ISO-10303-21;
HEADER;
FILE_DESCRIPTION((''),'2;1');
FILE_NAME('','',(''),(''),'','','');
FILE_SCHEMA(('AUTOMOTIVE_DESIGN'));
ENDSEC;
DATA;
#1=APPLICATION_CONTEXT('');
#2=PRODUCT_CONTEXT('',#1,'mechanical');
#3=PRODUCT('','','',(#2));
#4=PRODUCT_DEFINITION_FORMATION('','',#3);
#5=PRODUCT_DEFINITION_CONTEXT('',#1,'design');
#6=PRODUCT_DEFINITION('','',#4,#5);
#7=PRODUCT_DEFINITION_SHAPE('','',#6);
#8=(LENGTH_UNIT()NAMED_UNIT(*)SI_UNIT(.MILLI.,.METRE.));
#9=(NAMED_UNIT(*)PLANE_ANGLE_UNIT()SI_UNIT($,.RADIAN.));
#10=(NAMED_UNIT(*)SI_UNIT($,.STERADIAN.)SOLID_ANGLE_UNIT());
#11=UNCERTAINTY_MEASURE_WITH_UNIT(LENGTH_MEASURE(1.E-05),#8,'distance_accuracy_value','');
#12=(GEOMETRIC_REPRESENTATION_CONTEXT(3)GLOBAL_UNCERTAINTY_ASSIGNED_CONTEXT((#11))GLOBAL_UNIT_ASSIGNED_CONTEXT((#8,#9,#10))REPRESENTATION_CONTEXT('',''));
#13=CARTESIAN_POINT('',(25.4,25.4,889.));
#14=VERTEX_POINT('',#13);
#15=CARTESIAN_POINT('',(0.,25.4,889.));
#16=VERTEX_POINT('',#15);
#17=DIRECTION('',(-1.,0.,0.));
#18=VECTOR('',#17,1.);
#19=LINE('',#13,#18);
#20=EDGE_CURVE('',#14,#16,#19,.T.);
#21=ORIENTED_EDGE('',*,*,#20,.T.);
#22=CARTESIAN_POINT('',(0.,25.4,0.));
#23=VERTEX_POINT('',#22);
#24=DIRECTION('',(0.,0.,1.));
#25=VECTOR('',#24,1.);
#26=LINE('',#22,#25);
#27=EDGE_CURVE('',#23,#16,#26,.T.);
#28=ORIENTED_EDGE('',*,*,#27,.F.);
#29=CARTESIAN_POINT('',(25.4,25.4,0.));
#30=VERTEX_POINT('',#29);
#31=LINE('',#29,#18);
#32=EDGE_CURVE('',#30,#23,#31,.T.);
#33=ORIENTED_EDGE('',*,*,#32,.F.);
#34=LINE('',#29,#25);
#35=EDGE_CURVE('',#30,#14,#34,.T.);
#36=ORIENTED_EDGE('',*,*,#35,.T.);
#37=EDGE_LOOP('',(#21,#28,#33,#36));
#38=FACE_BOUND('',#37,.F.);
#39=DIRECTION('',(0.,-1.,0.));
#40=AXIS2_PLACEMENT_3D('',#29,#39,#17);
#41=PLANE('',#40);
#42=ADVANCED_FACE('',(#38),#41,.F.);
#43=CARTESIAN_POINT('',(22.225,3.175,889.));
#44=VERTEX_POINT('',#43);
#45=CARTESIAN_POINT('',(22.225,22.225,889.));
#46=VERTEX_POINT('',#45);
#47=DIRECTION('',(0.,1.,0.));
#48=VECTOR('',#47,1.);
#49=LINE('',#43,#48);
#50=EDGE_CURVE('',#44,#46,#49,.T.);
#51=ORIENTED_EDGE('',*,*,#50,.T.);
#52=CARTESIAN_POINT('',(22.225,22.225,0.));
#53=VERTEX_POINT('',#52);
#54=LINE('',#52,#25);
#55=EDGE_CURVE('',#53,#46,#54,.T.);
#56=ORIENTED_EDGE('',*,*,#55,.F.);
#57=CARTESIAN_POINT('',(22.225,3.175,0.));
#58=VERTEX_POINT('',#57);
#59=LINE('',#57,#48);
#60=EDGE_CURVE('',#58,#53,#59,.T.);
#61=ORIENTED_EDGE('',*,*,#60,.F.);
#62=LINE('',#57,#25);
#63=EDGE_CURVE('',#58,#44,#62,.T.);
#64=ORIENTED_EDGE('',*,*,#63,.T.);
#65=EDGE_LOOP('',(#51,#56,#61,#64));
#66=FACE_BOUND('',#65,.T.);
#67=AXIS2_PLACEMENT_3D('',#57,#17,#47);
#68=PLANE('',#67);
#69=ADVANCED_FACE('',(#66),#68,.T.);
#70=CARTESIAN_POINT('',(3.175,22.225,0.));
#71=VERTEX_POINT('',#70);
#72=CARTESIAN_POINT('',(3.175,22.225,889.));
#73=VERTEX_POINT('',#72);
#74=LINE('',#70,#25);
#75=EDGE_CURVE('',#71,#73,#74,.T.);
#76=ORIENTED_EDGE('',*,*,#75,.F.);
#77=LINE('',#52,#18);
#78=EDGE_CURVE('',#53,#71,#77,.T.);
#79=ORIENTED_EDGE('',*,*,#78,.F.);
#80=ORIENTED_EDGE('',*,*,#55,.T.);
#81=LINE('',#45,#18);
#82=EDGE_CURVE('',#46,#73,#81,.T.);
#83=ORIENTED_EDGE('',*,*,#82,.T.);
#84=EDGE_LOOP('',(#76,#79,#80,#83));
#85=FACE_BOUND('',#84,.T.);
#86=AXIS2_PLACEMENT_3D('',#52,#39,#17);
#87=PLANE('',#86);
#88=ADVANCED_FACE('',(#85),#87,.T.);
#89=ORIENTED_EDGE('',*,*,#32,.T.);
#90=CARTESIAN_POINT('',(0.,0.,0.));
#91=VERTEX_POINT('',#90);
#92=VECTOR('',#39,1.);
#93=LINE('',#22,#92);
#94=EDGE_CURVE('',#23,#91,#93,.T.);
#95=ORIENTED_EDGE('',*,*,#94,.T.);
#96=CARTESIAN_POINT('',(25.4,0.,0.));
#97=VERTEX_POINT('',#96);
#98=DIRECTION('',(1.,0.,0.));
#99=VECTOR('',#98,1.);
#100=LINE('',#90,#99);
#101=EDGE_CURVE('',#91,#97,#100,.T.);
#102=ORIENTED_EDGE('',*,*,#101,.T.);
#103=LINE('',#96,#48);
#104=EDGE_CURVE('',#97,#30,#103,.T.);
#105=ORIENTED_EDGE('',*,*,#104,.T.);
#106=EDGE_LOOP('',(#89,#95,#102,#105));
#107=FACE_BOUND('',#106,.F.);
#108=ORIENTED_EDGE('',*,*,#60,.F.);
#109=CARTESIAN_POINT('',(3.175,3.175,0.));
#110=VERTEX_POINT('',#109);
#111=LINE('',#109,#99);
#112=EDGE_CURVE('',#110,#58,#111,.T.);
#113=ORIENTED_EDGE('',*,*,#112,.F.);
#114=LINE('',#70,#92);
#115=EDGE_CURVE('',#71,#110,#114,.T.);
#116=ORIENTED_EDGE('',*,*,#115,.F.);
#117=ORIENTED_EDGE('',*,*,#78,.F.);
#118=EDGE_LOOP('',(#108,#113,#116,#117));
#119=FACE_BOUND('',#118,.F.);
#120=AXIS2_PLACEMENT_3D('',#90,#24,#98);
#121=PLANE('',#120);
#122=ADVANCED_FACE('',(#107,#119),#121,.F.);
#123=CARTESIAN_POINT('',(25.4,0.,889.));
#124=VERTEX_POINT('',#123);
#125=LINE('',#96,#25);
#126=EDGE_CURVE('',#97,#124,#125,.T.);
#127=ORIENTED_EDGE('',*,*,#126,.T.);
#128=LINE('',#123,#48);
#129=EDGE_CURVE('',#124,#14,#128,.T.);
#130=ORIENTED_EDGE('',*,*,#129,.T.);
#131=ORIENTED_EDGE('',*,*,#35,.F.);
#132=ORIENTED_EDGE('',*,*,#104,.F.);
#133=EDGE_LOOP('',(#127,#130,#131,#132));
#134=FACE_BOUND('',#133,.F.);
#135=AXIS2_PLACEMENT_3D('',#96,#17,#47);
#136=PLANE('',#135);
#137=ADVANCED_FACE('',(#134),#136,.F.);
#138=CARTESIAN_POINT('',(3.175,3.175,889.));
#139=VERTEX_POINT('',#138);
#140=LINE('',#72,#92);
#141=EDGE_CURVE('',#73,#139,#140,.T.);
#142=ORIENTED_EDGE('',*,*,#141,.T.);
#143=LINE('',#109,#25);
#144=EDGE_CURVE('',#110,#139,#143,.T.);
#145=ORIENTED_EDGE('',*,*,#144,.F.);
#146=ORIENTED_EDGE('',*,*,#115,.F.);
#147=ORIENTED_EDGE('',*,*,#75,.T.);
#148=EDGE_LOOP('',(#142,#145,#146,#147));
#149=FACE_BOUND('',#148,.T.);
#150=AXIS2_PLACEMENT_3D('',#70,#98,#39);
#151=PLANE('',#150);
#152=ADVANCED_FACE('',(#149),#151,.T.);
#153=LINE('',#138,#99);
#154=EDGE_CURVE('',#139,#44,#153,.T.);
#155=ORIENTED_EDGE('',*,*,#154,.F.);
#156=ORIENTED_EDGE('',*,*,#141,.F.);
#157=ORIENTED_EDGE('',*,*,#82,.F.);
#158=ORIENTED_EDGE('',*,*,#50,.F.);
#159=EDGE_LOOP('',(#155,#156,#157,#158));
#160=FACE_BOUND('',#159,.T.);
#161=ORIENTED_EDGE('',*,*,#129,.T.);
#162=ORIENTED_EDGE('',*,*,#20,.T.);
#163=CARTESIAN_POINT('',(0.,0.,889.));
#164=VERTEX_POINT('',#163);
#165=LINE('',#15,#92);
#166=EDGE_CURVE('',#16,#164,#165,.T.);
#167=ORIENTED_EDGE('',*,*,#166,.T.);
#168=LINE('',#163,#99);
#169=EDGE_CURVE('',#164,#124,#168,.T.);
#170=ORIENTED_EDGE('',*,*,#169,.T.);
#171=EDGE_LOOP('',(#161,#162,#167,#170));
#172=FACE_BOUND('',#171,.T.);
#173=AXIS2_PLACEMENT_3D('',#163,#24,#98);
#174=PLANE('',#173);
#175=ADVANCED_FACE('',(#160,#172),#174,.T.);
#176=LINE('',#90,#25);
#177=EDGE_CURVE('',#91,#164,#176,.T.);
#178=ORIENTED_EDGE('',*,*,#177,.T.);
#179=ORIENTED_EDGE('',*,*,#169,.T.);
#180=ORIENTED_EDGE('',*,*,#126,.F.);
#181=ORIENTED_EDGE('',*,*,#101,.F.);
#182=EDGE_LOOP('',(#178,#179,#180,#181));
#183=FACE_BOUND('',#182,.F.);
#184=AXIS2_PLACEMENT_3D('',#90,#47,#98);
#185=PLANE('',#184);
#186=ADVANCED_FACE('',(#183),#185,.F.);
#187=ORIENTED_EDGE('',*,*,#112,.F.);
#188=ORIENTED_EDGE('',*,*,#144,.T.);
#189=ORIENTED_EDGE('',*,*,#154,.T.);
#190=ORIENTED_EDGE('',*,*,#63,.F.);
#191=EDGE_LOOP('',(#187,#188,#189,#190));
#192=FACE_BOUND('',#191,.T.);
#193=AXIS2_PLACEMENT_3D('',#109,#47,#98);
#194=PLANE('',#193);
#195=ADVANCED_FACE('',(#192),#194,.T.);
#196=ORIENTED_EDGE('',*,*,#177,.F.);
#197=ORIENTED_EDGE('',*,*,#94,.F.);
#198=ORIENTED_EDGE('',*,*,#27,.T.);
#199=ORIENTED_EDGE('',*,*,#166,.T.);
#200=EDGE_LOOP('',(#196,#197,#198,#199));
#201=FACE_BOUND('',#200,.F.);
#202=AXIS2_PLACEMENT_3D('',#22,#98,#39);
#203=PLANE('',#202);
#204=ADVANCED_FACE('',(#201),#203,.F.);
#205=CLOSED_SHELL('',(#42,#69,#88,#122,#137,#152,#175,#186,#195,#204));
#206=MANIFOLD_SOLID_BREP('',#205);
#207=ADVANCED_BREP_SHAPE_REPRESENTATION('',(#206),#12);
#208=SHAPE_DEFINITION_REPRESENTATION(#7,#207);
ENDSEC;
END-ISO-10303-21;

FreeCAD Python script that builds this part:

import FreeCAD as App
import Part
import Sketcher
from FreeCAD import Vector
Q = App.Units.Quantity

doc = App.newDocument("Part")
body = doc.addObject("PartDesign::Body", "Body")

# Sketch on XY plane
sketch1 = body.newObject("Sketcher::SketchObject", "Sketch")
sketch1.AttachmentSupport = (doc.getObject("XY_Plane"), [""])
sketch1.MapMode = "FlatFace"
sketch1.addGeometry(Part.LineSegment(Vector(0, 25, 0), Vector(0, 0, 0)), False)
sketch1.addGeometry(Part.LineSegment(Vector(0, 0, 0), Vector(25, 0, 0)), False)
sketch1.addGeometry(Part.LineSegment(Vector(25, 0, 0), Vector(25, 25, 0)), False)
sketch1.addGeometry(Part.LineSegment(Vector(25, 25, 0), Vector(0, 25, 0)), False)
sketch1.addGeometry(Part.LineSegment(Vector(22, 3, 0), Vector(3, 3, 0)), False)
sketch1.addGeometry(Part.LineSegment(Vector(3, 3, 0), Vector(3, 22, 0)), False)
sketch1.addGeometry(Part.LineSegment(Vector(3, 22, 0), Vector(22, 22, 0)), False)
sketch1.addGeometry(Part.LineSegment(Vector(22, 22, 0), Vector(22, 3, 0)), False)
sketch1.addConstraint(Sketcher.Constraint("Coincident", 0, 2, 1, 1))
sketch1.addConstraint(Sketcher.Constraint("Coincident", 1, 2, 2, 1))
sketch1.addConstraint(Sketcher.Constraint("Coincident", 2, 2, 3, 1))
sketch1.addConstraint(Sketcher.Constraint("Coincident", 3, 2, 0, 1))
sketch1.addConstraint(Sketcher.Constraint("Coincident", 4, 2, 5, 1))
sketch1.addConstraint(Sketcher.Constraint("Coincident", 5, 2, 6, 1))
sketch1.addConstraint(Sketcher.Constraint("Coincident", 6, 2, 7, 1))
sketch1.addConstraint(Sketcher.Constraint("Coincident", 7, 2, 4, 1))
sketch1.addConstraint(Sketcher.Constraint("Vertical", 0))
sketch1.addConstraint(Sketcher.Constraint("Horizontal", 1))
sketch1.addConstraint(Sketcher.Constraint("Vertical", 2))
sketch1.addConstraint(Sketcher.Constraint("Horizontal", 3))
sketch1.addConstraint(Sketcher.Constraint("Horizontal", 4))
sketch1.addConstraint(Sketcher.Constraint("Vertical", 5))
sketch1.addConstraint(Sketcher.Constraint("Horizontal", 6))
sketch1.addConstraint(Sketcher.Constraint("Vertical", 7))
sketch1.addConstraint(Sketcher.Constraint("Coincident", 0, 2, -1, 1))
sketch1.addConstraint(Sketcher.Constraint("Equal", 3, 0))
sketch1.addConstraint(Sketcher.Constraint("Equal", 6, 5))
sketch1.addConstraint(Sketcher.Constraint("DistanceX", 1, 1, 1, 2, Q("1 in")))
sketch1.addConstraint(Sketcher.Constraint("DistanceX", -1, 1, 4, 2, Q("0.125 in")))
sketch1.addConstraint(Sketcher.Constraint("DistanceY", -1, 1, 4, 2, Q("0.125 in")))
sketch1.addConstraint(Sketcher.Constraint("DistanceY", 5, 2, 3, 2, Q("0.125 in")))
pad1 = body.newObject("PartDesign::Pad", "Pad")
pad1.Profile = sketch1
pad1.Length = Q("35 in")

doc.recompute()
